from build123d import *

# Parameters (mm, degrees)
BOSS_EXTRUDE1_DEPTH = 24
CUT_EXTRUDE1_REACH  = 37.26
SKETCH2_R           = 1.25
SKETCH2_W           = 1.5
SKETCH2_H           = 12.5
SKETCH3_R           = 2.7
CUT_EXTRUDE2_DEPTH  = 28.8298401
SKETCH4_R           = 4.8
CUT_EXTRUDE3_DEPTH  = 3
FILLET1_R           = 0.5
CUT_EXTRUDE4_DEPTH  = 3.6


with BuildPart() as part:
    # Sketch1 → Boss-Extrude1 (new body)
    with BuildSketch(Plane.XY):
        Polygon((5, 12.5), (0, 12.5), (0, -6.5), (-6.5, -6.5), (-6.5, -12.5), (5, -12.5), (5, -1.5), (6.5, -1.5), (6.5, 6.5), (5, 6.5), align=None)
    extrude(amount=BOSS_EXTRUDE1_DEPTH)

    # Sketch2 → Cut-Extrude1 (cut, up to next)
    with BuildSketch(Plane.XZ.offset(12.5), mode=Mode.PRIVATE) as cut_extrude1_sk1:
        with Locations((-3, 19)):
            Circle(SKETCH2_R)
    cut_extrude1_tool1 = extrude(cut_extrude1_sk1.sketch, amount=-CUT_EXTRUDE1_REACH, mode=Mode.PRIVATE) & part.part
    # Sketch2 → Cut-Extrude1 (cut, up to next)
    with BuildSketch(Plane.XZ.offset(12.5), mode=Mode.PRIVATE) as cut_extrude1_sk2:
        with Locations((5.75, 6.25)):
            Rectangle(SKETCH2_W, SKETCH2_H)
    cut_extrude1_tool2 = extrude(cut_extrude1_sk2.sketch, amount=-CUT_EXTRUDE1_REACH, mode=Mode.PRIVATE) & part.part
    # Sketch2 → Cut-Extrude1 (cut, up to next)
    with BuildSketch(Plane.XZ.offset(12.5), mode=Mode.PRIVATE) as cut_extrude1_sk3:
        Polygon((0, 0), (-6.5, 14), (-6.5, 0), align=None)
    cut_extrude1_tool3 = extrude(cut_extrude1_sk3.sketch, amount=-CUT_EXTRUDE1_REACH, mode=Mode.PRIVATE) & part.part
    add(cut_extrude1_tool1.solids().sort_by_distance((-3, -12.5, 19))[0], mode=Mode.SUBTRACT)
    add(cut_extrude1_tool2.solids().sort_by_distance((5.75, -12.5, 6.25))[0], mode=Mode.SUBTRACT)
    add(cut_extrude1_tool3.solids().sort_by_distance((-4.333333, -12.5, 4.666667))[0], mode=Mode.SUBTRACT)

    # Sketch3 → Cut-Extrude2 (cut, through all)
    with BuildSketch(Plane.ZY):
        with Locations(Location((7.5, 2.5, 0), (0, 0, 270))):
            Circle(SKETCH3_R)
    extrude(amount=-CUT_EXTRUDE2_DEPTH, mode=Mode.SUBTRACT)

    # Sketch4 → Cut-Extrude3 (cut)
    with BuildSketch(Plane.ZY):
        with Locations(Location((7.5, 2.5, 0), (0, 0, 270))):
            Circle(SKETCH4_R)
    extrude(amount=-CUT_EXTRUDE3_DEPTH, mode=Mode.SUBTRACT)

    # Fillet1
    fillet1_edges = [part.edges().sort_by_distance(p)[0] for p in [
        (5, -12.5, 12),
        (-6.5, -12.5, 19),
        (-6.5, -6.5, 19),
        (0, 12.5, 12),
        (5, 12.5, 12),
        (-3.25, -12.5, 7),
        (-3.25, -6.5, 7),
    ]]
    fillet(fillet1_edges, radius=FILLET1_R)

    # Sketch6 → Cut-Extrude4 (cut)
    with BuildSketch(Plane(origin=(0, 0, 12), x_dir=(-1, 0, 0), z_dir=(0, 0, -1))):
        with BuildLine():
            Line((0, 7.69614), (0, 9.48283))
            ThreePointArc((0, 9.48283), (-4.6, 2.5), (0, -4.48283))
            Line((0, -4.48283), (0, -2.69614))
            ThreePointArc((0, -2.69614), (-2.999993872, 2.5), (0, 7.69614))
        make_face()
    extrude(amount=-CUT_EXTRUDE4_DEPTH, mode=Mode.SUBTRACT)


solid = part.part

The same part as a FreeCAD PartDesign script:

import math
import FreeCAD as App
import Part
import Sketcher
from FreeCAD import Vector
Q = App.Units.Quantity


def edges_at(feature, points):
    """Names of the edges that pass closest to the given points."""
    edges = feature.Shape.Edges
    near = lambda p: min(range(len(edges)), key=lambda i: edges[i].distToShape(Part.Vertex(*p))[0])
    return sorted({f"Edge{near(p) + 1}" for p in points})

doc = App.newDocument("Part")
params = doc.addObject("Spreadsheet::Sheet", "Params")
for row, (alias, value) in enumerate([
    ("sketch1_width", "5 mm"),
    ("sketch1_height", "19 mm"),
    ("sketch1_height2", "6 mm"),
    ("sketch1_height3", "11 mm"),
    ("sketch1_width2", "6.5 mm"),
    ("pad1_length", "24 mm"),
    ("sketch2_diameter", "2.5 mm"),
    ("sketch3_width", "1.5 mm"),
    ("sketch3_height", "12.5 mm"),
    ("pocket2_length", "19 mm"),
    ("sketch4_height", "14 mm"),
    ("sketch4_width", "6.5 mm"),
    ("sketch5_diameter", "5.4 mm"),
    ("sketch6_diameter", "9.6 mm"),
    ("pocket5_length", "3 mm"),
    ("fillet_radius", "0.5 mm"),
    ("pocket6_length", "3.6 mm"),
], start=1):
    params.set(f"A{row}", alias)
    params.set(f"B{row}", "=" + value)
    params.setAlias(f"B{row}", alias)

body = doc.addObject("PartDesign::Body", "Body")

# Sketch on XY plane
sketch1 = body.newObject("Sketcher::SketchObject", "Sketch")
sketch1.AttachmentSupport = (doc.getObject("XY_Plane"), [""])
sketch1.MapMode = "FlatFace"
sketch1.addGeometry([
    Part.LineSegment(Vector(5, 12.5, 0), Vector(0, 12.5, 0)),  # 0
    Part.LineSegment(Vector(0, 12.5, 0), Vector(0, -6.5, 0)),  # 1
    Part.LineSegment(Vector(0, -6.5, 0), Vector(-6.5, -6.5, 0)),  # 2
    Part.LineSegment(Vector(-6.5, -6.5, 0), Vector(-6.5, -12.5, 0)),  # 3
    Part.LineSegment(Vector(-6.5, -12.5, 0), Vector(5, -12.5, 0)),  # 4
    Part.LineSegment(Vector(5, -12.5, 0), Vector(5, -1.5, 0)),  # 5
    Part.LineSegment(Vector(5, -1.5, 0), Vector(6.5, -1.5, 0)),  # 6
    Part.LineSegment(Vector(6.5, -1.5, 0), Vector(6.5, 6.5, 0)),  # 7
    Part.LineSegment(Vector(6.5, 6.5, 0), Vector(5, 6.5, 0)),  # 8
    Part.LineSegment(Vector(5, 6.5, 0), Vector(5, 12.5, 0)),  # 9
], False)
sketch1.addConstraint([
    Sketcher.Constraint("Coincident", 0, 2, 1, 1),
    Sketcher.Constraint("Coincident", 1, 2, 2, 1),
    Sketcher.Constraint("Coincident", 2, 2, 3, 1),
    Sketcher.Constraint("Coincident", 3, 2, 4, 1),
    Sketcher.Constraint("Coincident", 4, 2, 5, 1),
    Sketcher.Constraint("Coincident", 5, 2, 6, 1),
    Sketcher.Constraint("Coincident", 6, 2, 7, 1),
    Sketcher.Constraint("Coincident", 7, 2, 8, 1),
    Sketcher.Constraint("Coincident", 8, 2, 9, 1),
    Sketcher.Constraint("Coincident", 9, 2, 0, 1),
    Sketcher.Constraint("Horizontal", 0),
    Sketcher.Constraint("Vertical", 1),
    Sketcher.Constraint("Horizontal", 2),
    Sketcher.Constraint("Vertical", 3),
    Sketcher.Constraint("Horizontal", 4),
    Sketcher.Constraint("Vertical", 5),
    Sketcher.Constraint("Horizontal", 6),
    Sketcher.Constraint("Vertical", 7),
    Sketcher.Constraint("Horizontal", 8),
    Sketcher.Constraint("Vertical", 9),
    Sketcher.Constraint("Symmetric", 2, 2, 7, 2, -1, 1),
    Sketcher.Constraint("Symmetric", 4, 2, 9, 2, -1),
    Sketcher.Constraint("PointOnObject", 0, 2, -2),
    Sketcher.Constraint("DistanceX", 0, 2, 0, 1, Q("5 mm")),
    Sketcher.Constraint("DistanceY", 1, 2, 1, 1, Q("19 mm")),
    Sketcher.Constraint("DistanceY", 3, 2, 3, 1, Q("6 mm")),
    Sketcher.Constraint("DistanceY", 5, 1, 5, 2, Q("11 mm")),
    Sketcher.Constraint("DistanceX", 2, 2, 2, 1, Q("6.5 mm")),
])
sketch1.setExpression("Constraints[23]", "Params.sketch1_width")
sketch1.setExpression("Constraints[24]", "Params.sketch1_height")
sketch1.setExpression("Constraints[25]", "Params.sketch1_height2")
sketch1.setExpression("Constraints[26]", "Params.sketch1_height3")
sketch1.setExpression("Constraints[27]", "Params.sketch1_width2")
pad1 = body.newObject("PartDesign::Pad", "Pad")
pad1.Profile = sketch1
pad1.setExpression("Length", "Params.pad1_length")

# Sketch on XZ plane
sketch2 = body.newObject("Sketcher::SketchObject", "Sketch001")
sketch2.AttachmentSupport = (doc.getObject("XZ_Plane"), [""])
sketch2.MapMode = "FlatFace"
sketch2.AttachmentOffset = App.Placement(Vector(0, 0, 12.5), App.Rotation())
sketch2.addGeometry(Part.Circle(Vector(-3, 19, 0), Vector(0, 0, 1), 1.25), False)
sketch2.addConstraint([
    Sketcher.Constraint("Diameter", 0, Q("2.5 mm")),
    Sketcher.Constraint("DistanceX", 0, 3, -1, 1, Q("3 mm")),
    Sketcher.Constraint("DistanceY", -1, 1, 0, 3, Q("19 mm")),
])
sketch2.setExpression("Constraints[0]", "Params.sketch2_diameter")
pocket1 = body.newObject("PartDesign::Pocket", "Pocket")
pocket1.Profile = sketch2
pocket1.Type = "UpToFirst"

# Sketch on XZ plane
sketch3 = body.newObject("Sketcher::SketchObject", "Sketch002")
sketch3.AttachmentSupport = (doc.getObject("XZ_Plane"), [""])
sketch3.MapMode = "FlatFace"
sketch3.AttachmentOffset = App.Placement(Vector(0, 0, 12.5), App.Rotation())
sketch3.addGeometry([
    Part.LineSegment(Vector(5, 12.5, 0), Vector(5, 0, 0)),
    Part.LineSegment(Vector(5, 0, 0), Vector(6.5, 0, 0)),
    Part.LineSegment(Vector(6.5, 0, 0), Vector(6.5, 12.5, 0)),
    Part.LineSegment(Vector(6.5, 12.5, 0), Vector(5, 12.5, 0)),
], False)
sketch3.addConstraint([
    Sketcher.Constraint("Coincident", 0, 2, 1, 1),
    Sketcher.Constraint("Coincident", 1, 2, 2, 1),
    Sketcher.Constraint("Coincident", 2, 2, 3, 1),
    Sketcher.Constraint("Coincident", 3, 2, 0, 1),
    Sketcher.Constraint("Vertical", 0),
    Sketcher.Constraint("Horizontal", 1),
    Sketcher.Constraint("Vertical", 2),
    Sketcher.Constraint("Horizontal", 3),
    Sketcher.Constraint("PointOnObject", 0, 2, -1),
    Sketcher.Constraint("DistanceX", 1, 1, 1, 2, Q("1.5 mm")),
    Sketcher.Constraint("DistanceY", 0, 2, 0, 1, Q("12.5 mm")),
    Sketcher.Constraint("DistanceX", -1, 1, 0, 2, Q("5 mm")),
])
sketch3.setExpression("Constraints[9]", "Params.sketch3_width")
sketch3.setExpression("Constraints[10]", "Params.sketch3_height")
pocket2 = body.newObject("PartDesign::Pocket", "Pocket001")
pocket2.Profile = sketch3
pocket2.setExpression("Length", "Params.pocket2_length")

# Sketch on XZ plane
sketch4 = body.newObject("Sketcher::SketchObject", "Sketch003")
sketch4.AttachmentSupport = (doc.getObject("XZ_Plane"), [""])
sketch4.MapMode = "FlatFace"
sketch4.AttachmentOffset = App.Placement(Vector(0, 0, 12.5), App.Rotation())
sketch4.addGeometry([
    Part.LineSegment(Vector(0, 0, 0), Vector(-6.5, 14, 0)),
    Part.LineSegment(Vector(-6.5, 14, 0), Vector(-6.5, 0, 0)),
    Part.LineSegment(Vector(-6.5, 0, 0), Vector(0, 0, 0)),
], False)
sketch4.addConstraint([
    Sketcher.Constraint("Coincident", 0, 2, 1, 1),
    Sketcher.Constraint("Coincident", 1, 2, 2, 1),
    Sketcher.Constraint("Coincident", 2, 2, 0, 1),
    Sketcher.Constraint("Vertical", 1),
    Sketcher.Constraint("Horizontal", 2),
    Sketcher.Constraint("Coincident", 2, 2, -1, 1),
    Sketcher.Constraint("DistanceY", 1, 2, 1, 1, Q("14 mm")),
    Sketcher.Constraint("DistanceX", 2, 1, 2, 2, Q("6.5 mm")),
])
sketch4.setExpression("Constraints[6]", "Params.sketch4_height")
sketch4.setExpression("Constraints[7]", "Params.sketch4_width")
pocket3 = body.newObject("PartDesign::Pocket", "Pocket002")
pocket3.Profile = sketch4
pocket3.Type = "UpToFirst"

# Sketch on YZ plane
sketch5 = body.newObject("Sketcher::SketchObject", "Sketch004")
sketch5.AttachmentSupport = (doc.getObject("YZ_Plane"), [""])
sketch5.MapMode = "FlatFace"
sketch5.addGeometry(Part.Circle(Vector(2.5, 7.5, 0), Vector(0, 0, 1), 2.7), False)
sketch5.addConstraint([
    Sketcher.Constraint("Diameter", 0, Q("5.4 mm")),
    Sketcher.Constraint("DistanceX", -1, 1, 0, 3, Q("2.5 mm")),
    Sketcher.Constraint("DistanceY", -1, 1, 0, 3, Q("7.5 mm")),
])
sketch5.setExpression("Constraints[0]", "Params.sketch5_diameter")
pocket4 = body.newObject("PartDesign::Pocket", "Pocket003")
pocket4.Profile = sketch5
pocket4.Type = "ThroughAll"
pocket4.Reversed = True

# Sketch on YZ plane
sketch6 = body.newObject("Sketcher::SketchObject", "Sketch005")
sketch6.AttachmentSupport = (doc.getObject("YZ_Plane"), [""])
sketch6.MapMode = "FlatFace"
sketch6.addGeometry(Part.Circle(Vector(2.5, 7.5, 0), Vector(0, 0, 1), 4.8), False)
sketch6.addConstraint([
    Sketcher.Constraint("Diameter", 0, Q("9.6 mm")),
    Sketcher.Constraint("DistanceX", -1, 1, 0, 3, Q("2.5 mm")),
    Sketcher.Constraint("DistanceY", -1, 1, 0, 3, Q("7.5 mm")),
])
sketch6.setExpression("Constraints[0]", "Params.sketch6_diameter")
pocket5 = body.newObject("PartDesign::Pocket", "Pocket004")
pocket5.Profile = sketch6
pocket5.setExpression("Length", "Params.pocket5_length")
pocket5.Reversed = True
doc.recompute()

fillet = body.newObject("PartDesign::Fillet", "Fillet")
fillet.Base = (pocket5, edges_at(pocket5, [
    (5, -12.5, 12),
    (-6.5, -12.5, 19),
    (-6.5, -6.5, 19),
    (0, 12.5, 12),
    (5, 12.5, 12),
    (-3.25, -12.5, 7),
    (-3.25, -6.5, 7),
]))
fillet.setExpression("Radius", "Params.fillet_radius")

# Sketch on XY plane
sketch7 = body.newObject("Sketcher::SketchObject", "Sketch006")
sketch7.AttachmentSupport = (doc.getObject("XY_Plane"), [""])
sketch7.MapMode = "FlatFace"
sketch7.AttachmentOffset = App.Placement(Vector(0, 0, 12), App.Rotation())
sketch7.addGeometry([
    Part.LineSegment(Vector(0, 7.69614, 0), Vector(0, 9.48283, 0)),
    Part.ArcOfCircle(Part.Circle(Vector(-2.999991, 2.5, 0), Vector(0, 0, 1), 7.599991), math.radians(-66.750483), math.radians(66.750483)),
    Part.LineSegment(Vector(0, -4.48283, 0), Vector(0, -2.69614, 0)),
    Part.ArcOfCircle(Part.Circle(Vector(-2.999991, 2.5, 0), Vector(0, 0, 1), 5.999985), math.radians(-60.000017), math.radians(60.000017)),
], False)
sketch7.addConstraint([
    Sketcher.Constraint("Coincident", 0, 2, 1, 2),
    Sketcher.Constraint("Coincident", 1, 1, 2, 1),
    Sketcher.Constraint("Coincident", 2, 2, 3, 1),
    Sketcher.Constraint("Coincident", 3, 2, 0, 1),
    Sketcher.Constraint("Vertical", 0),
    Sketcher.Constraint("Vertical", 2),
    Sketcher.Constraint("Coincident", 3, 3, 1, 3),
    Sketcher.Constraint("PointOnObject", 0, 2, -2),
    Sketcher.Constraint("PointOnObject", 1, 1, -2),
    Sketcher.Constraint("DistanceY", -1, 1, 1, 3, Q("2.5 mm")),
    Sketcher.Constraint("Radius", 1, Q("7.599991 mm")),
    Sketcher.Constraint("Radius", 3, Q("5.999985 mm")),
    Sketcher.Constraint("DistanceY", 0, 1, 0, 2, Q("1.78669 mm")),
])
pocket6 = body.newObject("PartDesign::Pocket", "Pocket005")
pocket6.Profile = sketch7
pocket6.setExpression("Length", "Params.pocket6_length")
pocket6.Reversed = True

doc.recompute()
